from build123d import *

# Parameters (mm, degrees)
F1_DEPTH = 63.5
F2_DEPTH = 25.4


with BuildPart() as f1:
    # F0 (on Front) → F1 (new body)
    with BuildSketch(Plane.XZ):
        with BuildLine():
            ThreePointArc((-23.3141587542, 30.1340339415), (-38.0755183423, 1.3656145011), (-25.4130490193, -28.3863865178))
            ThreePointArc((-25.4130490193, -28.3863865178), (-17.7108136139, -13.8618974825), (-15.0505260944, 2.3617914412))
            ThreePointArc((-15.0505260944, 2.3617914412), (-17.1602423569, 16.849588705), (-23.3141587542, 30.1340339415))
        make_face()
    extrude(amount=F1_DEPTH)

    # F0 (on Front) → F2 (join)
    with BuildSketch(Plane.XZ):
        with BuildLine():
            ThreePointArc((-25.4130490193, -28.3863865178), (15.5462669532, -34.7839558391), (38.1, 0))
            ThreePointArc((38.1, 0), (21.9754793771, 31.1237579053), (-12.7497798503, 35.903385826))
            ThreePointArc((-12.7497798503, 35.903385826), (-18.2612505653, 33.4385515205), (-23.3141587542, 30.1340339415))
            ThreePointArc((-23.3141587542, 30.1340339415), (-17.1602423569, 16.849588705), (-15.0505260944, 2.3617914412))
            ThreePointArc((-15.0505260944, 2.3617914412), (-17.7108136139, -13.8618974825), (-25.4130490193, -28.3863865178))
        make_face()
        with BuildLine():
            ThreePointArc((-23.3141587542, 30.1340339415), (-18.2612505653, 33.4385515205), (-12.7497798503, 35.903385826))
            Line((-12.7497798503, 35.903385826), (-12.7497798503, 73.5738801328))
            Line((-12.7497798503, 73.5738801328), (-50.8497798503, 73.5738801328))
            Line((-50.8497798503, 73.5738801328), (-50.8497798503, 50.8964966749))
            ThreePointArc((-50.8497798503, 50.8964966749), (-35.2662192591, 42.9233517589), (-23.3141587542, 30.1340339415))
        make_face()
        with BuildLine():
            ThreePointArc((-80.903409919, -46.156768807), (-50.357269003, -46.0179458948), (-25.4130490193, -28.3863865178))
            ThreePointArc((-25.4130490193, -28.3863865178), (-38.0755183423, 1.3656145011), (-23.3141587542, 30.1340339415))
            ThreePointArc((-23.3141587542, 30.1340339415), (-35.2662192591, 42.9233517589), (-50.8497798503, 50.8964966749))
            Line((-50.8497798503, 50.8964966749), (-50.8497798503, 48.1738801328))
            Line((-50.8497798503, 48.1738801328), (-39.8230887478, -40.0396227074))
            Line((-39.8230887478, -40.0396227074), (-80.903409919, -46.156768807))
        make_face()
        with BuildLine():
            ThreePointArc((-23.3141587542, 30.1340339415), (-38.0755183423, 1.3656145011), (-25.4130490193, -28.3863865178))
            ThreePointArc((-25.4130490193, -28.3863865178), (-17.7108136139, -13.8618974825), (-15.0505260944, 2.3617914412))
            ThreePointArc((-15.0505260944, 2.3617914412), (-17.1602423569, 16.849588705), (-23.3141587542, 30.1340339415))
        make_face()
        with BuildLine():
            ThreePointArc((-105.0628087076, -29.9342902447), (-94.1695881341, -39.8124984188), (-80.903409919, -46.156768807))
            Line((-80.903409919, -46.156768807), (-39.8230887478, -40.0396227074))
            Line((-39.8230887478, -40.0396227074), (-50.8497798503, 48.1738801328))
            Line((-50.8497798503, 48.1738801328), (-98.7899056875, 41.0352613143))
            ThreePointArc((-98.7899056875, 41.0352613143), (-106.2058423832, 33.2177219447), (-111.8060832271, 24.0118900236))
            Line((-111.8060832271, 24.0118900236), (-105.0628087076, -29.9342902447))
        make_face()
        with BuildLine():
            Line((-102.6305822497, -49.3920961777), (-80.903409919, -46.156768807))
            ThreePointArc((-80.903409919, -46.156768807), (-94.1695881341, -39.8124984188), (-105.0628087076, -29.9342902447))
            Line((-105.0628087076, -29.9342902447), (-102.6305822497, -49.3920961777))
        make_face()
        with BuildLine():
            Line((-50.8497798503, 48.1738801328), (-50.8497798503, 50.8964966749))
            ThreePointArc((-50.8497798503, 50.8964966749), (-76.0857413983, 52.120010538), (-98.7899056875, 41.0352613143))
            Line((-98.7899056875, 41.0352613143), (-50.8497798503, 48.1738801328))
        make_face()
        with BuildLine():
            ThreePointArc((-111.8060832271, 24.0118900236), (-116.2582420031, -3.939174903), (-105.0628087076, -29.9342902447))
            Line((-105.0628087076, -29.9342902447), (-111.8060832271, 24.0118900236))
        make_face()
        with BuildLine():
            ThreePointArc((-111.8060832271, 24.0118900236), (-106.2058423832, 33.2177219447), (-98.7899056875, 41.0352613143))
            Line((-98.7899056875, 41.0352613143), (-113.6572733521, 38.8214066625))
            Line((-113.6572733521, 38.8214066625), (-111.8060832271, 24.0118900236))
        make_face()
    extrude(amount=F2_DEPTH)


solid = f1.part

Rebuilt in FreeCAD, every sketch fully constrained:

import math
import FreeCAD as App
import Part
import Sketcher
from FreeCAD import Vector
Q = App.Units.Quantity

doc = App.newDocument("Part")
body = doc.addObject("PartDesign::Body", "Body")

# Sketch on XZ plane
sketch1 = body.newObject("Sketcher::SketchObject", "Sketch")
sketch1.AttachmentSupport = (doc.getObject("XZ_Plane"), [""])
sketch1.MapMode = "FlatFace"
sketch1.addGeometry(Part.ArcOfCircle(Part.Circle(Vector(0, 0, 0), Vector(0, 0, 1), 38.1), math.radians(127.728474), math.radians(228.163352)), False)
sketch1.addGeometry(Part.ArcOfCircle(Part.Circle(Vector(-65.850526, 2.361791, 0), Vector(0, 0, 1), 50.8), math.radians(-37.248928), math.radians(0)), False)
sketch1.addGeometry(Part.ArcOfCircle(Part.Circle(Vector(-65.850526, 2.361791, 0), Vector(0, 0, 1), 50.8), math.radians(0), math.radians(33.140754)), False)
sketch1.addConstraint(Sketcher.Constraint("Coincident", 0, 2, 1, 1))
sketch1.addConstraint(Sketcher.Constraint("Tangent", 1, 2, 2, 1))
sketch1.addConstraint(Sketcher.Constraint("Coincident", 2, 2, 0, 1))
sketch1.addConstraint(Sketcher.Constraint("Coincident", 0, 3, -1, 1))
sketch1.addConstraint(Sketcher.Constraint("Equal", 1, 2))
sketch1.addConstraint(Sketcher.Constraint("Horizontal", 2, 3, 1, 2))
sketch1.addConstraint(Sketcher.Constraint("Radius", 1, Q("2 in")))
sketch1.addConstraint(Sketcher.Constraint("Radius", 0, Q("1.5 in")))
sketch1.addConstraint(Sketcher.Constraint("DistanceY", -1, 1, 1, 3, Q("2.361791 mm")))
sketch1.addConstraint(Sketcher.Constraint("DistanceX", 0, 2, -1, 1, Q("25.413049 mm")))
pad1 = body.newObject("PartDesign::Pad", "Pad")
pad1.Profile = sketch1
pad1.Length = Q("2.5 in")

# Sketch on XZ plane
sketch2 = body.newObject("Sketcher::SketchObject", "Sketch001")
sketch2.AttachmentSupport = (doc.getObject("XZ_Plane"), [""])
sketch2.MapMode = "FlatFace"
sketch2.addGeometry(Part.ArcOfCircle(Part.Circle(Vector(-65.850526, 2.361791, 0), Vector(0, 0, 1), 50.8), math.radians(-107.236504), math.radians(-37.248928)), False)
sketch2.addGeometry(Part.ArcOfCircle(Part.Circle(Vector(0, 0, 0), Vector(0, 0, 1), 38.1), math.radians(-131.836648), math.radians(109.550641)), False)
sketch2.addGeometry(Part.LineSegment(Vector(-12.74978, 35.903386, 0), Vector(-12.74978, 73.57388, 0)), False)
sketch2.addGeometry(Part.LineSegment(Vector(-12.74978, 73.57388, 0), Vector(-50.84978, 73.57388, 0)), False)
sketch2.addGeometry(Part.LineSegment(Vector(-50.84978, 73.57388, 0), Vector(-50.84978, 50.896497, 0)), False)
sketch2.addGeometry(Part.ArcOfCircle(Part.Circle(Vector(-65.850526, 2.361791, 0), Vector(0, 0, 1), 50.8), math.radians(72.825055), math.radians(130.422054)), False)
sketch2.addGeometry(Part.LineSegment(Vector(-98.789906, 41.035261, 0), Vector(-113.657273, 38.821407, 0)), False)
sketch2.addGeometry(Part.LineSegment(Vector(-113.657273, 38.821407, 0), Vector(-111.806083, 24.01189, 0)), False)
sketch2.addGeometry(Part.ArcOfCircle(Part.Circle(Vector(-65.850526, 2.361791, 0), Vector(0, 0, 1), 50.8), math.radians(154.774431), math.radians(219.475606)), False)
sketch2.addGeometry(Part.LineSegment(Vector(-105.062809, -29.93429, 0), Vector(-102.630582, -49.392096, 0)), False)
sketch2.addGeometry(Part.LineSegment(Vector(-102.630582, -49.392096, 0), Vector(-80.90341, -46.156769, 0)), False)
sketch2.addConstraint(Sketcher.Constraint("Coincident", 0, 2, 1, 1))
sketch2.addConstraint(Sketcher.Constraint("Coincident", 1, 2, 2, 1))
sketch2.addConstraint(Sketcher.Constraint("Coincident", 2, 2, 3, 1))
sketch2.addConstraint(Sketcher.Constraint("Coincident", 3, 2, 4, 1))
sketch2.addConstraint(Sketcher.Constraint("Coincident", 4, 2, 5, 1))
sketch2.addConstraint(Sketcher.Constraint("Coincident", 5, 2, 6, 1))
sketch2.addConstraint(Sketcher.Constraint("Coincident", 6, 2, 7, 1))
sketch2.addConstraint(Sketcher.Constraint("Coincident", 7, 2, 8, 1))
sketch2.addConstraint(Sketcher.Constraint("Coincident", 8, 2, 9, 1))
sketch2.addConstraint(Sketcher.Constraint("Coincident", 9, 2, 10, 1))
sketch2.addConstraint(Sketcher.Constraint("Coincident", 10, 2, 0, 1))
sketch2.addConstraint(Sketcher.Constraint("Vertical", 2))
sketch2.addConstraint(Sketcher.Constraint("Horizontal", 3))
sketch2.addConstraint(Sketcher.Constraint("Vertical", 4))
sketch2.addConstraint(Sketcher.Constraint("Coincident", 1, 3, -1, 1))
sketch2.addConstraint(Sketcher.Constraint("Coincident", 5, 3, 0, 3))
sketch2.addConstraint(Sketcher.Constraint("Coincident", 8, 3, 0, 3))
sketch2.addConstraint(Sketcher.Constraint("Equal", 0, 5))
sketch2.addConstraint(Sketcher.Constraint("Equal", 5, 8))
sketch2.addConstraint(Sketcher.Constraint("Parallel", 7, 9))
sketch2.addConstraint(Sketcher.Constraint("Parallel", 6, 10))
sketch2.addConstraint(Sketcher.Constraint("Radius", 0, Q("2 in")))
sketch2.addConstraint(Sketcher.Constraint("Radius", 1, Q("1.5 in")))
sketch2.addConstraint(Sketcher.Constraint("DistanceX", 3, 2, 3, 1, Q("1.5 in")))
sketch2.addConstraint(Sketcher.Constraint("DistanceY", 0, 3, 7, 2, Q("21.650099 mm")))
sketch2.addConstraint(Sketcher.Constraint("DistanceX", 7, 2, 9, 2, Q("9.175501 mm")))
sketch2.addConstraint(Sketcher.Constraint("DistanceX", 8, 2, 10, 2, Q("24.159399 mm")))
sketch2.addConstraint(Sketcher.Constraint("Distance", 9, Q("19.609231 mm")))
sketch2.addConstraint(Sketcher.Constraint("DistanceY", 2, 1, 2, 2, Q("37.670494 mm")))
sketch2.addConstraint(Sketcher.Constraint("DistanceY", 4, 2, 4, 1, Q("22.677383 mm")))
sketch2.addConstraint(Sketcher.Constraint("DistanceY", -1, 1, 0, 3, Q("2.361791 mm")))
sketch2.addConstraint(Sketcher.Constraint("DistanceX", 0, 2, -1, 1, Q("25.413049 mm")))
sketch2.addConstraint(Sketcher.Constraint("DistanceY", -1, 1, 5, 2, Q("41.035261 mm")))
sketch2.addConstraint(Sketcher.Constraint("DistanceX", 8, 2, -1, 1, Q("105.062809 mm")))
pad2 = body.newObject("PartDesign::Pad", "Pad001")
pad2.Profile = sketch2
pad2.Length = Q("1 in")

doc.recompute()
